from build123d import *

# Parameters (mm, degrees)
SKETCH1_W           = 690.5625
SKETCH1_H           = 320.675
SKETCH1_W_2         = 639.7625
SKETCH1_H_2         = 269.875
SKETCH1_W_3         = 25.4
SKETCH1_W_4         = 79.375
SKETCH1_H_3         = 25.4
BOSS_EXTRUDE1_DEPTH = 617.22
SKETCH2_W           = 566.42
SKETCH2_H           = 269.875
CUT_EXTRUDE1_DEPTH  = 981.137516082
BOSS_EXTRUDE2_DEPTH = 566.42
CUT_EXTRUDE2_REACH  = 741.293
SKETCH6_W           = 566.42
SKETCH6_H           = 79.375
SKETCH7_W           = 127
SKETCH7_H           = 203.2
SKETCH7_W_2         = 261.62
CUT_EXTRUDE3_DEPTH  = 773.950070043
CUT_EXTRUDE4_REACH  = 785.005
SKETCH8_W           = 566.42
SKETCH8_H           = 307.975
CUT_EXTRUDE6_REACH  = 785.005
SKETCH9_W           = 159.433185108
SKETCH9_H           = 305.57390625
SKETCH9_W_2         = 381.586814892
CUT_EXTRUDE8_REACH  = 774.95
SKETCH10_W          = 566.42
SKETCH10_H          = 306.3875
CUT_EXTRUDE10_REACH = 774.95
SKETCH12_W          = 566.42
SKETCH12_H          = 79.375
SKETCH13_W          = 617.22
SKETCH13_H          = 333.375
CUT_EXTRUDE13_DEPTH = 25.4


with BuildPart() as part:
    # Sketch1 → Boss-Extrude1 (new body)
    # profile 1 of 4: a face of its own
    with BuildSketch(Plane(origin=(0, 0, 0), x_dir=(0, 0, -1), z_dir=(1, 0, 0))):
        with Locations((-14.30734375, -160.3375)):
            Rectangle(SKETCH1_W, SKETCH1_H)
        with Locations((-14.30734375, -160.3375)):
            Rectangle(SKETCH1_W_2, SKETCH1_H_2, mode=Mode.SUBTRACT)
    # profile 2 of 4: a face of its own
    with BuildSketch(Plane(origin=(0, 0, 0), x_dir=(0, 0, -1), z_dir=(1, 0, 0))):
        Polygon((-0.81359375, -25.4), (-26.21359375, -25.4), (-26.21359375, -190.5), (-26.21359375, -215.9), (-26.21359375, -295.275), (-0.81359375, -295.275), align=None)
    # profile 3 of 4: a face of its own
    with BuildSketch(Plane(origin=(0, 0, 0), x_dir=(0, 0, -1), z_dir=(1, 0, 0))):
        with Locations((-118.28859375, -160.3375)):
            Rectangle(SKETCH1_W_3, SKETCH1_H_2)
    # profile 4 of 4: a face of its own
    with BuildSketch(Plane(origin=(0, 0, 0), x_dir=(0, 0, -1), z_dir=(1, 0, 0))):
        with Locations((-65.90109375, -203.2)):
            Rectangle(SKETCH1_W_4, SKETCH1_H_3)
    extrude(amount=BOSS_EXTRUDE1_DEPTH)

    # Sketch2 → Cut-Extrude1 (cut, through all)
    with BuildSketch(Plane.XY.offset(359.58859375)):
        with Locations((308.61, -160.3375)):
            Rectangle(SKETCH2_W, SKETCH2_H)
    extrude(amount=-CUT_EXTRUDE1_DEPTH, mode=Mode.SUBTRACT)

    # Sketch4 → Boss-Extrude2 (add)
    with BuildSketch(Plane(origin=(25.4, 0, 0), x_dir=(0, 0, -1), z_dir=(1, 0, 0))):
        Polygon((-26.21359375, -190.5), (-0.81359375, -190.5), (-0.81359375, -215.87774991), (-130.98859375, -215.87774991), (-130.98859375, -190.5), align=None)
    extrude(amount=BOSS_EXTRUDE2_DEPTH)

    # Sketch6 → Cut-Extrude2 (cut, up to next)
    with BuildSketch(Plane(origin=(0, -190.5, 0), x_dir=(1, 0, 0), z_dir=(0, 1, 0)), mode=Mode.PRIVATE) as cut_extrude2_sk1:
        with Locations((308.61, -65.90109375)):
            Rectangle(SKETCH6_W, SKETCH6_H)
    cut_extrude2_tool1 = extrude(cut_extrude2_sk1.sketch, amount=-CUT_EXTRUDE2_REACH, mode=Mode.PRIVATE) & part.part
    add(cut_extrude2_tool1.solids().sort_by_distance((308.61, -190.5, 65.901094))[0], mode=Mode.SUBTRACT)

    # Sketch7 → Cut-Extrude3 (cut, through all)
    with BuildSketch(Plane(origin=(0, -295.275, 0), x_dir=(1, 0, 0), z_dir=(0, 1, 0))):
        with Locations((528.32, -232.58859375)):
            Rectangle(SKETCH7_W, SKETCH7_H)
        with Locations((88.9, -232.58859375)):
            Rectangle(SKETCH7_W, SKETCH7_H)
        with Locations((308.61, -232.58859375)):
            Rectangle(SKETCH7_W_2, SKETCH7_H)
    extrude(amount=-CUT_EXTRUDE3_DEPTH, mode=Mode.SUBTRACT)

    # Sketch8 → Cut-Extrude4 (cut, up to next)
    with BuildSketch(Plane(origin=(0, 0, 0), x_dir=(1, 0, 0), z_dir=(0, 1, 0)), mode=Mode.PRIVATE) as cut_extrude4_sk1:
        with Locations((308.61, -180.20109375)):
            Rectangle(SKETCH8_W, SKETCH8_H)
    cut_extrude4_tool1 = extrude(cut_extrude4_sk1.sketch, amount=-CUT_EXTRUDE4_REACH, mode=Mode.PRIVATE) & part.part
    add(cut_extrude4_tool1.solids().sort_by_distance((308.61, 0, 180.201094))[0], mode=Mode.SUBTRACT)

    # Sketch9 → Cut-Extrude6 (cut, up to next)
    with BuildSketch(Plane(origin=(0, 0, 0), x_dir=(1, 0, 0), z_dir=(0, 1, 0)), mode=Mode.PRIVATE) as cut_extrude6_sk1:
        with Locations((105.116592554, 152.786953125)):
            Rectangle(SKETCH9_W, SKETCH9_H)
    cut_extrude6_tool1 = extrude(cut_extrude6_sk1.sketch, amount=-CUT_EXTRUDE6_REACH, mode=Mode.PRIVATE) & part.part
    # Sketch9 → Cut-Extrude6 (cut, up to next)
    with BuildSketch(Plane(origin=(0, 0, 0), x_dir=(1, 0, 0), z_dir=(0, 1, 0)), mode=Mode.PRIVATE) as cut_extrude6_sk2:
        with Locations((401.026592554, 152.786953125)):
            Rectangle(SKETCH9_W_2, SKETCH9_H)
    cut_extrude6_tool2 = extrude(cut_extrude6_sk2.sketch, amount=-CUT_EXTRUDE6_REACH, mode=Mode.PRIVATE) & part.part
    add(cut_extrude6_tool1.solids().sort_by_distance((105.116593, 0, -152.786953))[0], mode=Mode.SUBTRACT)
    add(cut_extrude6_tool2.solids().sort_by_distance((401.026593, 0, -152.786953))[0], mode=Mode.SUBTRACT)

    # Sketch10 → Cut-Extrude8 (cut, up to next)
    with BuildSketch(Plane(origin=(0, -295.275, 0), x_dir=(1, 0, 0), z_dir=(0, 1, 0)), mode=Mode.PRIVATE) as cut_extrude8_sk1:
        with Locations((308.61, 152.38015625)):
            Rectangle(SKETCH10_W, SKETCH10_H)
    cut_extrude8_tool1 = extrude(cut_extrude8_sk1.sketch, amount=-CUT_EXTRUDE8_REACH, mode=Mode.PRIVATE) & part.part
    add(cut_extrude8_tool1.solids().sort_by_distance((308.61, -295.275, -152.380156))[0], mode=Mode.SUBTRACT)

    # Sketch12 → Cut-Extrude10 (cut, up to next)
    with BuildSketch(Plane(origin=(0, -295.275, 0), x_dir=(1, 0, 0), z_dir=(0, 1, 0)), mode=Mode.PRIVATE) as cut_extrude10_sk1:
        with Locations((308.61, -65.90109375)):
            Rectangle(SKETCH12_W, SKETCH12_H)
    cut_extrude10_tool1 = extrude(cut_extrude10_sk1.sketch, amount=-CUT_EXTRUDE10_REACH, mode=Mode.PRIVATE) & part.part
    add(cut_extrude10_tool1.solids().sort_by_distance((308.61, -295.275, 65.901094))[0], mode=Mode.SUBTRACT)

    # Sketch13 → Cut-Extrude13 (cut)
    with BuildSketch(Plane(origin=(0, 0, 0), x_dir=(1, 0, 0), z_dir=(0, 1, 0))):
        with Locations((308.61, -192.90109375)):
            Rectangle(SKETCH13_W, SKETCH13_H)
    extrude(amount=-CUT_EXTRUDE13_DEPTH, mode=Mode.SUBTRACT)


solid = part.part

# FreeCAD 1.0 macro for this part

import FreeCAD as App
import Part
import Sketcher

V = App.Vector
Q = App.Units.Quantity


def add_polygon(sketch, points):
    """Adds a closed chain of lines whose ends are joined by coincident constraints."""
    first, n = sketch.GeometryCount, len(points)
    for a, b in zip(points, points[1:] + points[:1]):
        sketch.addGeometry(Part.LineSegment(App.Vector(*a, 0), App.Vector(*b, 0)), False)
    for i in range(n):
        sketch.addConstraint(Sketcher.Constraint("Coincident", first + i, 2, first + (i + 1) % n, 1))

doc = App.newDocument("Part")
body = doc.addObject("PartDesign::Body", "Body")

# Sketch on YZ plane
sketch1 = doc.addObject("Sketcher::SketchObject", "Sketch")
body.addObject(sketch1)
sketch1.AttachmentSupport = (doc.YZ_Plane, [""])
sketch1.MapMode = "FlatFace"
add_polygon(sketch1, [(0, 360), (-321, 360), (-321, -331), (0, -331)])  # lines 0-3
add_polygon(sketch1, [(-295, 131), (-295, 334), (-25, 334), (-25, 131)])  # lines 4-7
add_polygon(sketch1, [(-295, 26), (-295, 106), (-216, 106), (-216, 26)])  # lines 8-11
add_polygon(sketch1, [(-295, -306), (-295, 1), (-25, 1), (-25, -306)])  # lines 12-15
add_polygon(sketch1, [(-25, 106), (-25, 26), (-190, 26), (-190, 106)])  # lines 16-19
sketch1.addConstraint([
    Sketcher.Constraint("Horizontal", 0),
    Sketcher.Constraint("Vertical", 1),
    Sketcher.Constraint("Horizontal", 2),
    Sketcher.Constraint("Vertical", 3),
    Sketcher.Constraint("Vertical", 4),
    Sketcher.Constraint("Horizontal", 5),
    Sketcher.Constraint("Vertical", 6),
    Sketcher.Constraint("Horizontal", 7),
    Sketcher.Constraint("Vertical", 8),
    Sketcher.Constraint("Horizontal", 9),
    Sketcher.Constraint("Vertical", 10),
    Sketcher.Constraint("Horizontal", 11),
    Sketcher.Constraint("Vertical", 12),
    Sketcher.Constraint("Horizontal", 13),
    Sketcher.Constraint("Vertical", 14),
    Sketcher.Constraint("Horizontal", 15),
    Sketcher.Constraint("Vertical", 16),
    Sketcher.Constraint("Horizontal", 17),
    Sketcher.Constraint("Vertical", 18),
    Sketcher.Constraint("Horizontal", 19),
    Sketcher.Constraint("PointOnObject", 2, 2, -2),
    Sketcher.Constraint("Horizontal", 11, 2, 16, 2),
    Sketcher.Constraint("Horizontal", 9, 2, 18, 2),
    Sketcher.Constraint("Vertical", 7, 2, 8, 2),
    Sketcher.Constraint("Vertical", 11, 2, 12, 2),
    Sketcher.Constraint("Vertical", 6, 2, 13, 2),
    Sketcher.Constraint("Vertical", 14, 2, 16, 2),
    Sketcher.Constraint("Equal", 11, 8),
    Sketcher.Constraint("DistanceY", 4, 1, 4, 2, Q("8 in")),
    Sketcher.Constraint("DistanceX", 17, 2, 17, 1, Q("6.5 in")),
    Sketcher.Constraint("DistanceX", 5, 2, -1, 1, Q("1 in")),
    Sketcher.Constraint("DistanceX", 0, 2, 4, 2, Q("1 in")),
    Sketcher.Constraint("DistanceY", 4, 2, 0, 2, Q("1 in")),
    Sketcher.Constraint("DistanceY", 8, 2, 7, 2, Q("1 in")),
    Sketcher.Constraint("DistanceY", 12, 2, 11, 2, Q("1 in")),
    Sketcher.Constraint("DistanceY", 2, 2, 14, 2, Q("1 in")),
    Sketcher.Constraint("DistanceX", 10, 2, 17, 2, Q("1 in")),
    Sketcher.Constraint("DistanceX", 0, 2, 0, 1, Q("12.625 in")),
    Sketcher.Constraint("DistanceY", 1, 2, 1, 1, Q("27.1875 in")),
    Sketcher.Constraint("DistanceY", -1, 1, 0, 2, Q("359.588594 mm")),
])
pad1 = doc.addObject("PartDesign::Pad", "Pad")
body.addObject(pad1)
pad1.Profile = sketch1
pad1.Length = Q("24.3 in")

# Sketch on XY plane
sketch2 = doc.addObject("Sketcher::SketchObject", "Sketch001")
body.addObject(sketch2)
sketch2.AttachmentSupport = (doc.XY_Plane, [""])
sketch2.MapMode = "FlatFace"
sketch2.AttachmentOffset = App.Placement(V(0, 0, 359.588594), App.Rotation())
add_polygon(sketch2, [(25, -25), (25, -295), (592, -295), (592, -25)])  # lines 0-3
sketch2.addConstraint([
    Sketcher.Constraint("Vertical", 0),
    Sketcher.Constraint("Horizontal", 1),
    Sketcher.Constraint("Vertical", 2),
    Sketcher.Constraint("Horizontal", 3),
    Sketcher.Constraint("DistanceX", 1, 1, 1, 2, Q("22.3 in")),
    Sketcher.Constraint("DistanceX", -1, 1, 0, 2, Q("1 in")),
    Sketcher.Constraint("DistanceY", 2, 2, -1, 1, Q("1 in")),
    Sketcher.Constraint("DistanceY", 0, 2, 0, 1, Q("10.625 in")),
])
pocket1 = doc.addObject("PartDesign::Pocket", "Pocket")
body.addObject(pocket1)
pocket1.Profile = sketch2
pocket1.Type = "ThroughAll"

# Sketch on YZ plane
sketch3 = doc.addObject("Sketcher::SketchObject", "Sketch002")
body.addObject(sketch3)
sketch3.AttachmentSupport = (doc.YZ_Plane, [""])
sketch3.MapMode = "FlatFace"
sketch3.AttachmentOffset = App.Placement(V(0, 0, 1 * 25.4), App.Rotation())
add_polygon(sketch3, [(-190, 1), (-190, 131), (-216, 131), (-216, 1)])  # lines 0-3
sketch3.addConstraint([
    Sketcher.Constraint("Vertical", 0),
    Sketcher.Constraint("Horizontal", 1),
    Sketcher.Constraint("Vertical", 2),
    Sketcher.Constraint("Horizontal", 3),
    Sketcher.Constraint("DistanceX", 0, 2, -1, 1, Q("7.5 in")),
    Sketcher.Constraint("DistanceY", 0, 1, 0, 2, Q("5.125 in")),
    Sketcher.Constraint("DistanceX", 1, 2, 1, 1, Q("25.37775 mm")),
    Sketcher.Constraint("DistanceY", -1, 1, 0, 2, Q("130.988594 mm")),
])
pad2 = doc.addObject("PartDesign::Pad", "Pad001")
body.addObject(pad2)
pad2.Profile = sketch3
pad2.Length = Q("22.3 in")

# Sketch on XZ plane
sketch4 = doc.addObject("Sketcher::SketchObject", "Sketch003")
body.addObject(sketch4)
sketch4.AttachmentSupport = (doc.XZ_Plane, [""])
sketch4.MapMode = "FlatFace"
sketch4.AttachmentOffset = App.Placement(V(0, 0, 7.5 * 25.4), App.Rotation())
add_polygon(sketch4, [(25, 26), (25, 106), (592, 106), (592, 26)])  # lines 0-3
sketch4.addConstraint([
    Sketcher.Constraint("Vertical", 0),
    Sketcher.Constraint("Horizontal", 1),
    Sketcher.Constraint("Vertical", 2),
    Sketcher.Constraint("Horizontal", 3),
    Sketcher.Constraint("DistanceX", 1, 1, 1, 2, Q("22.3 in")),
    Sketcher.Constraint("DistanceX", -1, 1, 0, 2, Q("1 in")),
    Sketcher.Constraint("DistanceY", 0, 1, 0, 2, Q("3.125 in")),
    Sketcher.Constraint("DistanceY", -1, 1, 0, 2, Q("105.588594 mm")),
])
pocket2 = doc.addObject("PartDesign::Pocket", "Pocket001")
body.addObject(pocket2)
pocket2.Profile = sketch4
pocket2.Type = "UpToFirst"
pocket2.Reversed = True

# Sketch on XZ plane
sketch5 = doc.addObject("Sketcher::SketchObject", "Sketch004")
body.addObject(sketch5)
sketch5.AttachmentSupport = (doc.XZ_Plane, [""])
sketch5.MapMode = "FlatFace"
sketch5.AttachmentOffset = App.Placement(V(0, 0, 11.625 * 25.4), App.Rotation())
add_polygon(sketch5, [(465, 131), (465, 334), (592, 334), (592, 131)])  # lines 0-3
add_polygon(sketch5, [(25, 131), (25, 334), (152, 334), (152, 131)])  # lines 4-7
add_polygon(sketch5, [(178, 131), (178, 334), (439, 334), (439, 131)])  # lines 8-11
sketch5.addConstraint([
    Sketcher.Constraint("Vertical", 0),
    Sketcher.Constraint("Horizontal", 1),
    Sketcher.Constraint("Vertical", 2),
    Sketcher.Constraint("Horizontal", 3),
    Sketcher.Constraint("Vertical", 4),
    Sketcher.Constraint("Horizontal", 5),
    Sketcher.Constraint("Vertical", 6),
    Sketcher.Constraint("Horizontal", 7),
    Sketcher.Constraint("Vertical", 8),
    Sketcher.Constraint("Horizontal", 9),
    Sketcher.Constraint("Vertical", 10),
    Sketcher.Constraint("Horizontal", 11),
    Sketcher.Constraint("Horizontal", 1, 2, 4, 2),
    Sketcher.Constraint("Horizontal", 3, 2, 6, 2),
    Sketcher.Constraint("Horizontal", 5, 2, 8, 2),
    Sketcher.Constraint("Horizontal", 7, 2, 10, 2),
    Sketcher.Constraint("Equal", 3, 5),
    Sketcher.Constraint("DistanceX", 1, 1, 1, 2, Q("5 in")),
    Sketcher.Constraint("DistanceY", 0, 1, 0, 2, Q("8 in")),
    Sketcher.Constraint("DistanceX", 9, 1, 9, 2, Q("10.3 in")),
    Sketcher.Constraint("DistanceX", -1, 1, 4, 2, Q("1 in")),
    Sketcher.Constraint("DistanceX", -1, 1, 8, 2, Q("7 in")),
    Sketcher.Constraint("DistanceX", 9, 2, 0, 2, Q("1 in")),
    Sketcher.Constraint("DistanceY", -1, 1, 0, 2, Q("334.188594 mm")),
])
pocket3 = doc.addObject("PartDesign::Pocket", "Pocket002")
body.addObject(pocket3)
pocket3.Profile = sketch5
pocket3.Type = "ThroughAll"
pocket3.Reversed = True

# Sketch on XZ plane
sketch6 = doc.addObject("Sketcher::SketchObject", "Sketch005")
body.addObject(sketch6)
sketch6.AttachmentSupport = (doc.XZ_Plane, [""])
sketch6.MapMode = "FlatFace"
add_polygon(sketch6, [(25, 26), (25, 334), (592, 334), (592, 26)])  # lines 0-3
sketch6.addConstraint([
    Sketcher.Constraint("Vertical", 0),
    Sketcher.Constraint("Horizontal", 1),
    Sketcher.Constraint("Vertical", 2),
    Sketcher.Constraint("Horizontal", 3),
    Sketcher.Constraint("DistanceX", 1, 1, 1, 2, Q("22.3 in")),
    Sketcher.Constraint("DistanceX", -1, 1, 0, 2, Q("1 in")),
    Sketcher.Constraint("DistanceY", 0, 1, 0, 2, Q("12.125 in")),
    Sketcher.Constraint("DistanceY", -1, 1, 0, 2, Q("334.188594 mm")),
])
pocket4 = doc.addObject("PartDesign::Pocket", "Pocket003")
body.addObject(pocket4)
pocket4.Profile = sketch6
pocket4.Type = "UpToFirst"
pocket4.Reversed = True

# Sketch on XZ plane
sketch7 = doc.addObject("Sketcher::SketchObject", "Sketch006")
body.addObject(sketch7)
sketch7.AttachmentSupport = (doc.XZ_Plane, [""])
sketch7.MapMode = "FlatFace"
add_polygon(sketch7, [(25, -306), (25, 0), (185, 0), (185, -306)])  # lines 0-3
sketch7.addConstraint([
    Sketcher.Constraint("Vertical", 0),
    Sketcher.Constraint("Horizontal", 1),
    Sketcher.Constraint("Vertical", 2),
    Sketcher.Constraint("Horizontal", 3),
    Sketcher.Constraint("PointOnObject", 0, 2, -1),
    Sketcher.Constraint("DistanceX", -1, 1, 0, 2, Q("1 in")),
    Sketcher.Constraint("DistanceX", 1, 1, 1, 2, Q("159.433185 mm")),
    Sketcher.Constraint("DistanceY", 0, 1, 0, 2, Q("305.573906 mm")),
])
pocket5 = doc.addObject("PartDesign::Pocket", "Pocket004")
body.addObject(pocket5)
pocket5.Profile = sketch7
pocket5.Type = "UpToFirst"
pocket5.Reversed = True

# Sketch on XZ plane
sketch8 = doc.addObject("Sketcher::SketchObject", "Sketch007")
body.addObject(sketch8)
sketch8.AttachmentSupport = (doc.XZ_Plane, [""])
sketch8.MapMode = "FlatFace"
add_polygon(sketch8, [(210, -306), (210, 0), (592, 0), (592, -306)])  # lines 0-3
sketch8.addConstraint([
    Sketcher.Constraint("Vertical", 0),
    Sketcher.Constraint("Horizontal", 1),
    Sketcher.Constraint("Vertical", 2),
    Sketcher.Constraint("Horizontal", 3),
    Sketcher.Constraint("PointOnObject", 0, 2, -1),
    Sketcher.Constraint("DistanceX", -1, 1, 1, 2, Q("23.3 in")),
    Sketcher.Constraint("DistanceX", 1, 1, 1, 2, Q("381.586815 mm")),
    Sketcher.Constraint("DistanceY", 0, 1, 0, 2, Q("305.573906 mm")),
])
pocket6 = doc.addObject("PartDesign::Pocket", "Pocket005")
body.addObject(pocket6)
pocket6.Profile = sketch8
pocket6.Type = "UpToFirst"
pocket6.Reversed = True

# Sketch on XZ plane
sketch9 = doc.addObject("Sketcher::SketchObject", "Sketch008")
body.addObject(sketch9)
sketch9.AttachmentSupport = (doc.XZ_Plane, [""])
sketch9.MapMode = "FlatFace"
sketch9.AttachmentOffset = App.Placement(V(0, 0, 11.625 * 25.4), App.Rotation())
add_polygon(sketch9, [(25, -306), (25, 1), (592, 1), (592, -306)])  # lines 0-3
sketch9.addConstraint([
    Sketcher.Constraint("Vertical", 0),
    Sketcher.Constraint("Horizontal", 1),
    Sketcher.Constraint("Vertical", 2),
    Sketcher.Constraint("Horizontal", 3),
    Sketcher.Constraint("DistanceX", 1, 1, 1, 2, Q("22.3 in")),
    Sketcher.Constraint("DistanceX", -1, 1, 0, 2, Q("1 in")),
    Sketcher.Constraint("DistanceY", 0, 1, 0, 2, Q("12.0625 in")),
    Sketcher.Constraint("DistanceY", -1, 1, 0, 2, Q("0.813594 mm")),
])
pocket7 = doc.addObject("PartDesign::Pocket", "Pocket006")
body.addObject(pocket7)
pocket7.Profile = sketch9
pocket7.Type = "UpToFirst"
pocket7.Reversed = True

# Sketch on XZ plane
sketch10 = doc.addObject("Sketcher::SketchObject", "Sketch009")
body.addObject(sketch10)
sketch10.AttachmentSupport = (doc.XZ_Plane, [""])
sketch10.MapMode = "FlatFace"
sketch10.AttachmentOffset = App.Placement(V(0, 0, 11.625 * 25.4), App.Rotation())
add_polygon(sketch10, [(25, 26), (25, 106), (592, 106), (592, 26)])  # lines 0-3
sketch10.addConstraint([
    Sketcher.Constraint("Vertical", 0),
    Sketcher.Constraint("Horizontal", 1),
    Sketcher.Constraint("Vertical", 2),
    Sketcher.Constraint("Horizontal", 3),
    Sketcher.Constraint("DistanceX", 1, 1, 1, 2, Q("22.3 in")),
    Sketcher.Constraint("DistanceX", -1, 1, 0, 2, Q("1 in")),
    Sketcher.Constraint("DistanceY", 0, 1, 0, 2, Q("3.125 in")),
    Sketcher.Constraint("DistanceY", -1, 1, 0, 2, Q("105.588594 mm")),
])
pocket8 = doc.addObject("PartDesign::Pocket", "Pocket007")
body.addObject(pocket8)
pocket8.Profile = sketch10
pocket8.Type = "UpToFirst"
pocket8.Reversed = True

# Sketch on XZ plane
sketch11 = doc.addObject("Sketcher::SketchObject", "Sketch010")
body.addObject(sketch11)
sketch11.AttachmentSupport = (doc.XZ_Plane, [""])
sketch11.MapMode = "FlatFace"
add_polygon(sketch11, [(0, 26), (0, 360), (617, 360), (617, 26)])  # lines 0-3
sketch11.addConstraint([
    Sketcher.Constraint("Vertical", 0),
    Sketcher.Constraint("Horizontal", 1),
    Sketcher.Constraint("Vertical", 2),
    Sketcher.Constraint("Horizontal", 3),
    Sketcher.Constraint("PointOnObject", 0, 2, -2),
    Sketcher.Constraint("DistanceX", 1, 1, 1, 2, Q("24.3 in")),
    Sketcher.Constraint("DistanceY", 0, 1, 0, 2, Q("13.125 in")),
    Sketcher.Constraint("DistanceY", -1, 1, 0, 2, Q("359.588594 mm")),
])
pocket9 = doc.addObject("PartDesign::Pocket", "Pocket008")
body.addObject(pocket9)
pocket9.Profile = sketch11
pocket9.Length = Q("1 in")
pocket9.Reversed = True

doc.recompute()
